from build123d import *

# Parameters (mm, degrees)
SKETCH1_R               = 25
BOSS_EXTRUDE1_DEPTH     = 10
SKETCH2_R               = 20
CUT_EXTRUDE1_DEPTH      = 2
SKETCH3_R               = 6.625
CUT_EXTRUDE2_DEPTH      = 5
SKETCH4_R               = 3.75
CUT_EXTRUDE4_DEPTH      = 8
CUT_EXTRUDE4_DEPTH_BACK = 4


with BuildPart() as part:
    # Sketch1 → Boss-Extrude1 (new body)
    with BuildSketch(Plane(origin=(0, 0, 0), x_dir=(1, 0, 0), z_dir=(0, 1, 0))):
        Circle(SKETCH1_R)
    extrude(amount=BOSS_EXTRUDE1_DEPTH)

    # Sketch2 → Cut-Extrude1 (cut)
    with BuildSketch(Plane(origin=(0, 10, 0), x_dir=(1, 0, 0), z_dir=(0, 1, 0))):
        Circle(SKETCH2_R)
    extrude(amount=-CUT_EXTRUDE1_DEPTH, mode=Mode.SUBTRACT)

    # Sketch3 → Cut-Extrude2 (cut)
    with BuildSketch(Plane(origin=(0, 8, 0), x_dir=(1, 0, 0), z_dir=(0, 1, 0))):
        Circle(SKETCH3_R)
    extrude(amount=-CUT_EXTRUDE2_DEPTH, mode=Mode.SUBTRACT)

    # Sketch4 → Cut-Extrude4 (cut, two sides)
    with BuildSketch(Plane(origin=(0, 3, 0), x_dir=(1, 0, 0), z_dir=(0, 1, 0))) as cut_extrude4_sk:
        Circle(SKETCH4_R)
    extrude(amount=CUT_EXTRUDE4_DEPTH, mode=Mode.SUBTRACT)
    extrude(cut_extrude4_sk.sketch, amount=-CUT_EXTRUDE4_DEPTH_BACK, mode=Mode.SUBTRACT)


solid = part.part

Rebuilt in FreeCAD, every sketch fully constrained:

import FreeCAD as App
import Part
import Sketcher
from FreeCAD import Vector
Q = App.Units.Quantity

doc = App.newDocument("Part")
body = doc.addObject("PartDesign::Body", "Body")

sketch1 = doc.addObject("Sketcher::SketchObject", "Sketch")
body.addObject(sketch1)
sketch1.AttachmentSupport = (doc.XZ_Plane, [""])
sketch1.MapMode = "FlatFace"
sketch1.addGeometry(Part.Circle(Vector(0, 0, 0), Vector(0, 0, 1), 25), False)
sketch1.addConstraint([
    Sketcher.Constraint("Coincident", 0, 3, -1, 1),
    Sketcher.Constraint("Diameter", 0, Q("50 mm")),
])
pad1 = doc.addObject("PartDesign::Pad", "Pad")
body.addObject(pad1)
pad1.Profile = sketch1
pad1.Length = 10
pad1.Reversed = True

sketch2 = doc.addObject("Sketcher::SketchObject", "Sketch001")
body.addObject(sketch2)
sketch2.AttachmentSupport = (doc.XZ_Plane, [""])
sketch2.MapMode = "FlatFace"
sketch2.AttachmentOffset = App.Placement(Vector(0, 0, -10), App.Rotation())
sketch2.addGeometry(Part.Circle(Vector(0, 0, 0), Vector(0, 0, 1), 20), False)
sketch2.addConstraint([
    Sketcher.Constraint("Coincident", 0, 3, -1, 1),
    Sketcher.Constraint("Diameter", 0, Q("40 mm")),
])
pocket1 = doc.addObject("PartDesign::Pocket", "Pocket")
body.addObject(pocket1)
pocket1.Profile = sketch2
pocket1.Length = 2
pocket1.Reversed = True

sketch3 = doc.addObject("Sketcher::SketchObject", "Sketch002")
body.addObject(sketch3)
sketch3.AttachmentSupport = (doc.XZ_Plane, [""])
sketch3.MapMode = "FlatFace"
sketch3.AttachmentOffset = App.Placement(Vector(0, 0, -8), App.Rotation())
sketch3.addGeometry(Part.Circle(Vector(0, 0, 0), Vector(0, 0, 1), 6.625), False)
sketch3.addConstraint([
    Sketcher.Constraint("Coincident", 0, 3, -1, 1),
    Sketcher.Constraint("Diameter", 0, Q("13.25 mm")),
])
pocket2 = doc.addObject("PartDesign::Pocket", "Pocket001")
body.addObject(pocket2)
pocket2.Profile = sketch3
pocket2.Length = 5
pocket2.Reversed = True

sketch4 = doc.addObject("Sketcher::SketchObject", "Sketch003")
body.addObject(sketch4)
sketch4.AttachmentSupport = (doc.XZ_Plane, [""])
sketch4.MapMode = "FlatFace"
sketch4.AttachmentOffset = App.Placement(Vector(0, 0, -3), App.Rotation())
sketch4.addGeometry(Part.Circle(Vector(0, 0, 0), Vector(0, 0, 1), 3.75), False)
sketch4.addConstraint([
    Sketcher.Constraint("Coincident", 0, 3, -1, 1),
    Sketcher.Constraint("Diameter", 0, Q("7.5 mm")),
])
pocket3 = doc.addObject("PartDesign::Pocket", "Pocket002")
body.addObject(pocket3)
pocket3.Profile = sketch4
pocket3.Type = "ThroughAll"
pocket3.Midplane = True

doc.recompute()
